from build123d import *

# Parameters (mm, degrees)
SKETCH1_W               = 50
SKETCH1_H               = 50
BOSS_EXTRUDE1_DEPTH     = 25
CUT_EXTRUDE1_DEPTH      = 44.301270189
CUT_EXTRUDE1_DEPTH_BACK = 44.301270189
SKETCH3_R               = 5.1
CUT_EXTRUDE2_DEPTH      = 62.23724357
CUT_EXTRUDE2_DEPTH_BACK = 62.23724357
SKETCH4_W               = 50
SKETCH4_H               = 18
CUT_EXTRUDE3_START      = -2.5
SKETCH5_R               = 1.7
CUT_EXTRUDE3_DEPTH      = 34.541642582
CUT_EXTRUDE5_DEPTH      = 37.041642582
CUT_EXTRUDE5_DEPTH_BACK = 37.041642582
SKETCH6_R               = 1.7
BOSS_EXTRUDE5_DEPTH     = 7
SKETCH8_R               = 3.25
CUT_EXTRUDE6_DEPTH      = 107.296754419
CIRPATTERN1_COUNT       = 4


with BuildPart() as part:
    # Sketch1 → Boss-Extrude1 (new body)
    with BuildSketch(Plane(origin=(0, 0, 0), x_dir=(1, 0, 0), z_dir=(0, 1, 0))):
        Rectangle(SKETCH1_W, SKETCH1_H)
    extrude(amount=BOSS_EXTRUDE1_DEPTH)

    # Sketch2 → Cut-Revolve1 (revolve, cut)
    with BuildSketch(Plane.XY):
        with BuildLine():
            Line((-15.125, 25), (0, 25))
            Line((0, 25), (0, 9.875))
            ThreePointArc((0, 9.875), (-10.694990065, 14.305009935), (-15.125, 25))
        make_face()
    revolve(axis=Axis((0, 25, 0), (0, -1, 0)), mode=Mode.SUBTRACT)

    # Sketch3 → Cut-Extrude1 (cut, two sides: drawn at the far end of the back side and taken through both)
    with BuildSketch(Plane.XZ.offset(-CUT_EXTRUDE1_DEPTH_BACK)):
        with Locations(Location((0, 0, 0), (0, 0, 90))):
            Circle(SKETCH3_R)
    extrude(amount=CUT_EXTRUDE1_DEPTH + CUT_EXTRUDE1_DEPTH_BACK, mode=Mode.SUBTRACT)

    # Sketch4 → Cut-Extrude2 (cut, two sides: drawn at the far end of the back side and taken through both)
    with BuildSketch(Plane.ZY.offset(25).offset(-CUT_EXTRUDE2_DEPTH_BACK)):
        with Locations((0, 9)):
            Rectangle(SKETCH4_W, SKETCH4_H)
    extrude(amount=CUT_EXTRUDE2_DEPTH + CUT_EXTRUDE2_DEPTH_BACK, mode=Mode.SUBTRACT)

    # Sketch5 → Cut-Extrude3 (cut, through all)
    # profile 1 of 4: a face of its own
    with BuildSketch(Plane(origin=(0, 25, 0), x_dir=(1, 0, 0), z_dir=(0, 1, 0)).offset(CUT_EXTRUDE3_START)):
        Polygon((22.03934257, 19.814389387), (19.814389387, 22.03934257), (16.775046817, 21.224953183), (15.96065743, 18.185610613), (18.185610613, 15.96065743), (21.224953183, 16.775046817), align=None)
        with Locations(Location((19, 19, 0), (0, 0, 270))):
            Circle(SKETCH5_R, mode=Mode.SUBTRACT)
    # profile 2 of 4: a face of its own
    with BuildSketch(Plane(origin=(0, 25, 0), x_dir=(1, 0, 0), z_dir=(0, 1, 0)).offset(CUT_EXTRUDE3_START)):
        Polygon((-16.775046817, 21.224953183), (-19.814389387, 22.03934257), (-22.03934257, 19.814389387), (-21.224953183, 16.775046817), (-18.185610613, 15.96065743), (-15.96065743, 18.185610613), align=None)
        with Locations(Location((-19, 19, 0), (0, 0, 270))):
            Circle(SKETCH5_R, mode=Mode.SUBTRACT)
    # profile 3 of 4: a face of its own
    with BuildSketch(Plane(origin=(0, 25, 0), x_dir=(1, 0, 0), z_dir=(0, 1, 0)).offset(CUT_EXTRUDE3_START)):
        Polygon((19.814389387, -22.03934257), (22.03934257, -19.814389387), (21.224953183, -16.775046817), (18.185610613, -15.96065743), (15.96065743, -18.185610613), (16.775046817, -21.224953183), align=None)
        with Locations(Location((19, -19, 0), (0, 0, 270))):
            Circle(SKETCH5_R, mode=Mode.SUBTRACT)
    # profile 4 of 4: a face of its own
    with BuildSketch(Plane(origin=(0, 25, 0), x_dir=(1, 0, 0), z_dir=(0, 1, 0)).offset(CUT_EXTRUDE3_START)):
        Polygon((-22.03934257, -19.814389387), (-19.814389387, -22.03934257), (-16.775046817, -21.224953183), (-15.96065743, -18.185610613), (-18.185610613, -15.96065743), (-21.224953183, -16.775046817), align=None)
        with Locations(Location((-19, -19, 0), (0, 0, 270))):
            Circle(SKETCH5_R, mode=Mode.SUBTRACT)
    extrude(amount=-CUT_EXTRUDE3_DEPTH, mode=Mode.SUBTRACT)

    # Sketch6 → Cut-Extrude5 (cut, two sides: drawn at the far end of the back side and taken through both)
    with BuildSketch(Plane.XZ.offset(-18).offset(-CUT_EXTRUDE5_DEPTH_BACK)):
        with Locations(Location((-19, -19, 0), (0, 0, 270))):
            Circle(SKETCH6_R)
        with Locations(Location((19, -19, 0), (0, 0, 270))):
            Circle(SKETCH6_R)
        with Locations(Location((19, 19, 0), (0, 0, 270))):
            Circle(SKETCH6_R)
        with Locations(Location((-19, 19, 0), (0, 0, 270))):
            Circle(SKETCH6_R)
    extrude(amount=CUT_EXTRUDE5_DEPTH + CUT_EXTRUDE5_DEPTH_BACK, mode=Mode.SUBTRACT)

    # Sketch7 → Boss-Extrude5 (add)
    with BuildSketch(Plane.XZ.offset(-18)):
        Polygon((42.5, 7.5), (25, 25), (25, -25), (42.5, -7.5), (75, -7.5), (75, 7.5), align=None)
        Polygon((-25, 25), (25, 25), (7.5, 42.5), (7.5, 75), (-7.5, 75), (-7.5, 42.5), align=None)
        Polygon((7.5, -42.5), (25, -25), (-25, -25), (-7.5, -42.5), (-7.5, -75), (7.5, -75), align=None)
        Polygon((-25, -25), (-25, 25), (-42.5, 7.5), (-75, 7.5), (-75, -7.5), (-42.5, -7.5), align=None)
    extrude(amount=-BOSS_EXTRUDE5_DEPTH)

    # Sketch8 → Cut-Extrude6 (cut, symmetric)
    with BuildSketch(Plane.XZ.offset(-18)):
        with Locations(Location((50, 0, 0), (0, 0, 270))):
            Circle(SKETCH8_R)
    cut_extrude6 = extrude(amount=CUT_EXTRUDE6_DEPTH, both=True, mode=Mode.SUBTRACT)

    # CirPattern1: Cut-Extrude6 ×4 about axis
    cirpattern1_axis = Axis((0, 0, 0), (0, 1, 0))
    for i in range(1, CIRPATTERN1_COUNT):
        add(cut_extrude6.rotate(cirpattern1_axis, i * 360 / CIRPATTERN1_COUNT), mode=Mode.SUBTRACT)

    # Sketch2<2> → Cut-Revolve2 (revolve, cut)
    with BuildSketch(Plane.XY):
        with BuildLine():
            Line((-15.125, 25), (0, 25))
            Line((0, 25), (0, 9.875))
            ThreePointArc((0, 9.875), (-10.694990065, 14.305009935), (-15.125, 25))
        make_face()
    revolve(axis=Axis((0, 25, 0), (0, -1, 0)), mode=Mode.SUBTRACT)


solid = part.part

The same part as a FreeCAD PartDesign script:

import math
import FreeCAD as App
import Part
import Sketcher
Q = App.Units.Quantity


def add_polygon(sketch, points):
    """Adds a closed chain of lines whose ends are joined by coincident constraints."""
    first, n = sketch.GeometryCount, len(points)
    for a, b in zip(points, points[1:] + points[:1]):
        sketch.addGeometry(Part.LineSegment(App.Vector(*a, 0), App.Vector(*b, 0)), False)
    for i in range(n):
        sketch.addConstraint(Sketcher.Constraint("Coincident", first + i, 2, first + (i + 1) % n, 1))

doc = App.newDocument("Part")
body = doc.addObject("PartDesign::Body", "Body")

sketch1 = body.newObject("Sketcher::SketchObject", "Sketch")
sketch1.AttachmentSupport = (doc.getObject("XZ_Plane"), [""])
sketch1.MapMode = "FlatFace"
add_polygon(sketch1, [(-25, -25), (-25, 25), (25, 25), (25, -25)])
sketch1.addConstraint([
    Sketcher.Constraint("Vertical", 0),
    Sketcher.Constraint("Horizontal", 1),
    Sketcher.Constraint("Vertical", 2),
    Sketcher.Constraint("Horizontal", 3),
    Sketcher.Constraint("Symmetric", 0, 2, 2, 2, -1, 1),
    Sketcher.Constraint("Equal", 3, 0),
    Sketcher.Constraint("DistanceX", 1, 1, 1, 2, 50.0),
])
pad1 = body.newObject("PartDesign::Pad", "Pad")
pad1.Profile = sketch1
pad1.Length = 25
pad1.Reversed = True

sketch2 = body.newObject("Sketcher::SketchObject", "Sketch001")
sketch2.AttachmentSupport = (doc.getObject("XY_Plane"), [""])
sketch2.MapMode = "FlatFace"
sketch2.addGeometry([
    Part.LineSegment(App.Vector(0, 25, 0), App.Vector(-15, 25, 0)),
    Part.ArcOfCircle(Part.Circle(App.Vector(0, 25, 0), App.Vector(0, 0, 1), 15), math.radians(-180), math.radians(-90)),
    Part.LineSegment(App.Vector(0, 10, 0), App.Vector(0, 25, 0)),
], False)
sketch2.addConstraint([
    Sketcher.Constraint("Coincident", 0, 2, 1, 1),
    Sketcher.Constraint("Coincident", 1, 2, 2, 1),
    Sketcher.Constraint("Coincident", 2, 2, 0, 1),
    Sketcher.Constraint("Horizontal", 0),
    Sketcher.Constraint("Vertical", 2),
    Sketcher.Constraint("Coincident", 2, 2, 1, 3),
    Sketcher.Constraint("PointOnObject", 1, 3, -2),
    Sketcher.Constraint("DistanceY", -1, 1, 1, 3, 25.0),
    Sketcher.Constraint("Radius", 1, 15.125),
])
groove = body.newObject("PartDesign::Groove", "Groove")
groove.Profile = sketch2
groove.ReferenceAxis = (sketch2, ["V_Axis"])
groove.Angle = 360

sketch3 = body.newObject("Sketcher::SketchObject", "Sketch002")
sketch3.AttachmentSupport = (doc.getObject("XZ_Plane"), [""])
sketch3.MapMode = "FlatFace"
sketch3.addGeometry(Part.Circle(App.Vector(0, 0, 0), App.Vector(0, 0, 1), 5), False)
sketch3.addConstraint([
    Sketcher.Constraint("Coincident", 0, 3, -1, 1),
    Sketcher.Constraint("Diameter", 0, 10.2),
])
pocket1 = body.newObject("PartDesign::Pocket", "Pocket")
pocket1.Profile = sketch3
pocket1.Type = "ThroughAll"
pocket1.Midplane = True

sketch4 = body.newObject("Sketcher::SketchObject", "Sketch003")
sketch4.AttachmentSupport = (doc.getObject("YZ_Plane"), [""])
sketch4.MapMode = "FlatFace"
sketch4.AttachmentOffset = App.Placement(App.Vector(0, 0, -25), App.Rotation())
add_polygon(sketch4, [(18, -25), (0, -25), (0, 25), (18, 25)])
sketch4.addConstraint([
    Sketcher.Constraint("Horizontal", 0),
    Sketcher.Constraint("Vertical", 1),
    Sketcher.Constraint("Horizontal", 2),
    Sketcher.Constraint("Vertical", 3),
    Sketcher.Constraint("Symmetric", 0, 2, 1, 2, -1, 1),
    Sketcher.Constraint("DistanceX", 0, 2, 0, 1, 18.0),
    Sketcher.Constraint("DistanceY", 1, 1, 1, 2, 50.0),
])
pocket2 = body.newObject("PartDesign::Pocket", "Pocket001")
pocket2.Profile = sketch4
pocket2.Type = "ThroughAll"
pocket2.Midplane = True

sketch5 = body.newObject("Sketcher::SketchObject", "Sketch004")
sketch5.AttachmentSupport = (doc.getObject("XZ_Plane"), [""])
sketch5.MapMode = "FlatFace"
sketch5.AttachmentOffset = App.Placement(App.Vector(0, 0, -22.5), App.Rotation())
add_polygon(sketch5, [(22, -19.8), (19.8, -22), (16.8, -21.2), (16, -18.2), (18.2, -16), (21.2, -16.8)])
sketch5.addGeometry(Part.Circle(App.Vector(19, -19, 0), App.Vector(0, 0, 1), 1.7), False)
add_polygon(sketch5, [(-16.8, -21.2), (-19.8, -22), (-22, -19.8), (-21.2, -16.8), (-18.2, -16), (-16, -18.2)])
sketch5.addGeometry(Part.Circle(App.Vector(-19, -19, 0), App.Vector(0, 0, 1), 1.7), False)
add_polygon(sketch5, [(19.8, 22), (22, 19.8), (21.2, 16.8), (18.2, 16), (16, 18.2), (16.8, 21.2)])
sketch5.addGeometry(Part.Circle(App.Vector(19, 19, 0), App.Vector(0, 0, 1), 1.7), False)
add_polygon(sketch5, [(-22, 19.8), (-19.8, 22), (-16.8, 21.2), (-16, 18.2), (-18.2, 16), (-21.2, 16.8)])
sketch5.addGeometry(Part.Circle(App.Vector(-19, 19, 0), App.Vector(0, 0, 1), 1.7), False)
sketch5.addConstraint([
    Sketcher.Constraint("Equal", 6, 13),
    Sketcher.Constraint("Equal", 13, 20),
    Sketcher.Constraint("Equal", 20, 27),
    Sketcher.Constraint("Symmetric", 13, 3, 20, 3, -1, 1),
    Sketcher.Constraint("Symmetric", 6, 3, 27, 3, -1, 1),
    Sketcher.Constraint("Symmetric", 8, 2, 14, 2, -1, 1),
    Sketcher.Constraint("Symmetric", 9, 2, 15, 2, -1, 1),
    Sketcher.Constraint("Symmetric", 10, 2, 16, 2, -1, 1),
    Sketcher.Constraint("Symmetric", 11, 2, 17, 2, -1, 1),
    Sketcher.Constraint("Symmetric", 12, 2, 18, 2, -1, 1),
    Sketcher.Constraint("Symmetric", 7, 2, 19, 2, -1, 1),
    Sketcher.Constraint("Symmetric", 0, 2, 21, 2, -1, 1),
    Sketcher.Constraint("Symmetric", 1, 2, 22, 2, -1, 1),
    Sketcher.Constraint("Symmetric", 2, 2, 23, 2, -1, 1),
    Sketcher.Constraint("Symmetric", 3, 2, 24, 2, -1, 1),
    Sketcher.Constraint("Symmetric", 4, 2, 25, 2, -1, 1),
    Sketcher.Constraint("Symmetric", 5, 2, 26, 2, -1, 1),
    Sketcher.Constraint("Symmetric", 6, 3, 13, 3, -2),
    Sketcher.Constraint("Symmetric", 0, 2, 7, 2, -2),
    Sketcher.Constraint("Symmetric", 5, 2, 8, 2, -2),
    Sketcher.Constraint("Symmetric", 4, 2, 9, 2, -2),
    Sketcher.Constraint("Symmetric", 3, 2, 10, 2, -2),
    Sketcher.Constraint("Symmetric", 2, 2, 11, 2, -2),
    Sketcher.Constraint("Symmetric", 1, 2, 12, 2, -2),
    Sketcher.Constraint("Parallel", 0, 3),
    Sketcher.Constraint("Parallel", 1, 4),
    Sketcher.Constraint("Parallel", 2, 5),
    Sketcher.Constraint("Perpendicular", 5, 7),
    Sketcher.Constraint("Perpendicular", 3, 8),
    Sketcher.Constraint("Equal", 0, 1),
    Sketcher.Constraint("Equal", 1, 2),
    Sketcher.Constraint("Equal", 2, 3),
    Sketcher.Constraint("Diameter", 6, 3.4),
    Sketcher.Constraint("Angle", 1, Q("165 deg")),
    Sketcher.Constraint("DistanceX", -1, 1, 6, 3, 19.0),
    Sketcher.Constraint("DistanceY", 6, 3, -1, 1, 19.0),
    Sketcher.Constraint("DistanceX", 7, 2, 3, 2, 38.0),
    Sketcher.Constraint("DistanceY", 2, 2, 14, 2, 38.0),
    Sketcher.Constraint("Distance", 0, 3.146559),
])
pocket3 = body.newObject("PartDesign::Pocket", "Pocket002")
pocket3.Profile = sketch5
pocket3.Length = 34.541643
pocket3.Reversed = True

sketch6 = body.newObject("Sketcher::SketchObject", "Sketch005")
sketch6.AttachmentSupport = (doc.getObject("XZ_Plane"), [""])
sketch6.MapMode = "FlatFace"
sketch6.AttachmentOffset = App.Placement(App.Vector(0, 0, -18), App.Rotation())
sketch6.addGeometry([
    Part.Circle(App.Vector(-19, -19, 0), App.Vector(0, 0, 1), 1.7),
    Part.Circle(App.Vector(19, -19, 0), App.Vector(0, 0, 1), 1.7),
    Part.Circle(App.Vector(19, 19, 0), App.Vector(0, 0, 1), 1.7),
    Part.Circle(App.Vector(-19, 19, 0), App.Vector(0, 0, 1), 1.7),
], False)
sketch6.addConstraint([
    Sketcher.Constraint("Equal", 0, 1),
    Sketcher.Constraint("Equal", 1, 2),
    Sketcher.Constraint("Equal", 2, 3),
    Sketcher.Constraint("Symmetric", 0, 3, 2, 3, -1, 1),
    Sketcher.Constraint("Symmetric", 1, 3, 3, 3, -1, 1),
    Sketcher.Constraint("Symmetric", 0, 3, 1, 3, -2),
    Sketcher.Constraint("Diameter", 0, 3.4),
    Sketcher.Constraint("DistanceX", 0, 3, -1, 1, 19.0),
    Sketcher.Constraint("DistanceY", 0, 3, -1, 1, 19.0),
])
pocket4 = body.newObject("PartDesign::Pocket", "Pocket003")
pocket4.Profile = sketch6
pocket4.Type = "ThroughAll"
pocket4.Midplane = True

sketch7 = body.newObject("Sketcher::SketchObject", "Sketch006")
sketch7.AttachmentSupport = (doc.getObject("XZ_Plane"), [""])
sketch7.MapMode = "FlatFace"
sketch7.AttachmentOffset = App.Placement(App.Vector(0, 0, -18), App.Rotation())
add_polygon(sketch7, [(42, 8), (25, 25), (25, -25), (42, -8), (75, -8), (75, 8)])
add_polygon(sketch7, [(-25, 25), (25, 25), (8, 42), (8, 75), (-8, 75), (-8, 42)])
add_polygon(sketch7, [(8, -42), (25, -25), (-25, -25), (-8, -42), (-8, -75), (8, -75)])
add_polygon(sketch7, [(-25, -25), (-25, 25), (-42, 8), (-75, 8), (-75, -8), (-42, -8)])
sketch7.addConstraint([
    Sketcher.Constraint("Vertical", 1),
    Sketcher.Constraint("Horizontal", 3),
    Sketcher.Constraint("Vertical", 4),
    Sketcher.Constraint("Horizontal", 5),
    Sketcher.Constraint("Horizontal", 6),
    Sketcher.Constraint("Vertical", 8),
    Sketcher.Constraint("Horizontal", 9),
    Sketcher.Constraint("Vertical", 10),
    Sketcher.Constraint("Horizontal", 13),
    Sketcher.Constraint("Vertical", 15),
    Sketcher.Constraint("Horizontal", 16),
    Sketcher.Constraint("Vertical", 17),
    Sketcher.Constraint("Vertical", 18),
    Sketcher.Constraint("Horizontal", 20),
    Sketcher.Constraint("Vertical", 21),
    Sketcher.Constraint("Horizontal", 22),
    Sketcher.Constraint("Coincident", 6, 2, 0, 2),
    Sketcher.Constraint("Coincident", 12, 2, 1, 2),
    Sketcher.Constraint("Coincident", 18, 2, 11, 2),
    Sketcher.Constraint("Coincident", 23, 2, 13, 2),
    Sketcher.Constraint("Symmetric", 1, 2, 11, 2, -1, 1),
    Sketcher.Constraint("Symmetric", 7, 2, 14, 2, -1, 1),
    Sketcher.Constraint("Symmetric", 9, 2, 16, 2, -1, 1),
    Sketcher.Constraint("Symmetric", 2, 2, 19, 2, -1, 1),
    Sketcher.Constraint("Symmetric", 4, 2, 21, 2, -1, 1),
    Sketcher.Constraint("Symmetric", 7, 2, 10, 2, -2),
    Sketcher.Constraint("Symmetric", 5, 2, 19, 2, -2),
    Sketcher.Constraint("Perpendicular", 0, 2),
    Sketcher.Constraint("Perpendicular", 2, 7),
    Sketcher.Constraint("Parallel", 11, 12),
    Sketcher.Constraint("Perpendicular", 19, 23),
    Sketcher.Constraint("Equal", 13, 1),
    Sketcher.Constraint("Equal", 16, 4),
    Sketcher.Constraint("Equal", 22, 8),
    Sketcher.Constraint("DistanceX", 6, 1, 6, 2, 50.0),
    Sketcher.Constraint("DistanceX", 9, 2, 9, 1, 15.0),
    Sketcher.Constraint("DistanceX", 3, 1, 3, 2, 32.5),
])
pad2 = body.newObject("PartDesign::Pad", "Pad001")
pad2.Profile = sketch7
pad2.Length = 7
pad2.Reversed = True

sketch8 = body.newObject("Sketcher::SketchObject", "Sketch007")
sketch8.AttachmentSupport = (doc.getObject("XZ_Plane"), [""])
sketch8.MapMode = "FlatFace"
sketch8.AttachmentOffset = App.Placement(App.Vector(0, 0, -18), App.Rotation())
sketch8.addGeometry(Part.Circle(App.Vector(50, 0, 0), App.Vector(0, 0, 1), 3.2), False)
sketch8.addConstraint([
    Sketcher.Constraint("PointOnObject", 0, 3, -1),
    Sketcher.Constraint("Diameter", 0, 6.5),
    Sketcher.Constraint("DistanceX", -1, 1, 0, 3, 50.0),
])
pocket5 = body.newObject("PartDesign::Pocket", "Pocket004")
pocket5.Profile = sketch8
pocket5.Length = 214.593509
pocket5.Midplane = True
doc.recompute()

polarpattern = body.newObject("PartDesign::PolarPattern", "PolarPattern")
polarpattern.Originals = [pocket5]
polarpattern.Axis = (doc.getObject("Y_Axis"), [""])
polarpattern.Angle = 360
polarpattern.Occurrences = 4
body.Tip = polarpattern

sketch9 = body.newObject("Sketcher::SketchObject", "Sketch008")
sketch9.AttachmentSupport = (doc.getObject("XY_Plane"), [""])
sketch9.MapMode = "FlatFace"
sketch9.addGeometry([
    Part.LineSegment(App.Vector(0, 25, 0), App.Vector(-15, 25, 0)),
    Part.ArcOfCircle(Part.Circle(App.Vector(0, 25, 0), App.Vector(0, 0, 1), 15), math.radians(-180), math.radians(-90)),
    Part.LineSegment(App.Vector(0, 10, 0), App.Vector(0, 25, 0)),
], False)
sketch9.addConstraint([
    Sketcher.Constraint("Coincident", 0, 2, 1, 1),
    Sketcher.Constraint("Coincident", 1, 2, 2, 1),
    Sketcher.Constraint("Coincident", 2, 2, 0, 1),
    Sketcher.Constraint("Horizontal", 0),
    Sketcher.Constraint("Vertical", 2),
    Sketcher.Constraint("Coincident", 2, 2, 1, 3),
    Sketcher.Constraint("PointOnObject", 1, 3, -2),
    Sketcher.Constraint("DistanceY", -1, 1, 1, 3, 25.0),
    Sketcher.Constraint("Radius", 1, 15.125),
])
groove2 = body.newObject("PartDesign::Groove", "Groove001")
groove2.Profile = sketch9
groove2.ReferenceAxis = (sketch9, ["V_Axis"])
groove2.Angle = 360

doc.recompute()
